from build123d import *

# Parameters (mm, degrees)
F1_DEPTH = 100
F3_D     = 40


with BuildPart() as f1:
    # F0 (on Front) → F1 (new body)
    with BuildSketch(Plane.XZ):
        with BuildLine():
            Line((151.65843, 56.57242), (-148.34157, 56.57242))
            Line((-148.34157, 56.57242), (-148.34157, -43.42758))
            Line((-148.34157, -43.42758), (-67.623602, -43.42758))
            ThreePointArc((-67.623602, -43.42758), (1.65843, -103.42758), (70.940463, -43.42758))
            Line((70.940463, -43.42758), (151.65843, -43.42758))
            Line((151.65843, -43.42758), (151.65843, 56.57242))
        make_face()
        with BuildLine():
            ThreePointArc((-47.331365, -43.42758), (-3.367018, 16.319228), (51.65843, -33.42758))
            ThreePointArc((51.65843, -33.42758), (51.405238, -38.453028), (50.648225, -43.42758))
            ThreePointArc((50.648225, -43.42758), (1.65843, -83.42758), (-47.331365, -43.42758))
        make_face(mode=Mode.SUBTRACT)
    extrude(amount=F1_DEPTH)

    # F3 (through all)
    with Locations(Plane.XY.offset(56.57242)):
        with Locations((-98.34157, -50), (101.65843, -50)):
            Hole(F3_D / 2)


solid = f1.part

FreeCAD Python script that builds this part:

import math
import FreeCAD as App
import Part
import Sketcher

doc = App.newDocument("Part")
params = doc.addObject("Spreadsheet::Sheet", "Params")
for row, (alias, value) in enumerate([
    ("sketch1_radius", "70 mm"),
    ("sketch1_radius2", "50 mm"),
    ("sketch1_width", "300 mm"),
    ("sketch1_height", "100 mm"),
    ("sketch1_height2", "100 mm"),
    ("pad1_length", "100 mm"),
    ("sketch2_diameter", "40 mm"),
    ("hole_diameter", "40 mm"),
], start=1):
    params.set(f"A{row}", alias)
    params.set(f"B{row}", "=" + value)
    params.setAlias(f"B{row}", alias)

body = doc.addObject("PartDesign::Body", "Body")

sketch1 = body.newObject("Sketcher::SketchObject", "Sketch")
sketch1.AttachmentSupport = (doc.getObject("XZ_Plane"), [""])
sketch1.MapMode = "FlatFace"
sketch1.addGeometry([
    Part.LineSegment(App.Vector(151.65843, 56.57242, 0), App.Vector(-148.34157, 56.57242, 0)),
    Part.LineSegment(App.Vector(-148.34157, 56.57242, 0), App.Vector(-148.34157, -43.42758, 0)),
    Part.LineSegment(App.Vector(-148.34157, -43.42758, 0), App.Vector(-67.623602, -43.42758, 0)),
    Part.ArcOfCircle(Part.Circle(App.Vector(1.65843, -33.42758, 0), App.Vector(0, 0, 1), 70), math.radians(-171.786789), math.radians(-8.213211)),
    Part.LineSegment(App.Vector(70.940463, -43.42758, 0), App.Vector(151.65843, -43.42758, 0)),
    Part.LineSegment(App.Vector(151.65843, -43.42758, 0), App.Vector(151.65843, 56.57242, 0)),
    Part.ArcOfCircle(Part.Circle(App.Vector(1.65843, -33.42758, 0), App.Vector(0, 0, 1), 50), math.radians(-168.463041), math.radians(-11.536959)),
    Part.ArcOfCircle(Part.Circle(App.Vector(1.65843, -33.42758, 0), App.Vector(0, 0, 1), 50), math.radians(0), math.radians(191.536959)),
    Part.ArcOfCircle(Part.Circle(App.Vector(1.658482, -33.427586, 0), App.Vector(0, 0, 1), 49.999948), math.radians(-11.536964), math.radians(0.000007)),
], False)
sketch1.addConstraint([
    Sketcher.Constraint("Coincident", 0, 2, 1, 1),
    Sketcher.Constraint("Coincident", 1, 2, 2, 1),
    Sketcher.Constraint("Coincident", 2, 2, 3, 1),
    Sketcher.Constraint("Coincident", 3, 2, 4, 1),
    Sketcher.Constraint("Coincident", 4, 2, 5, 1),
    Sketcher.Constraint("Coincident", 5, 2, 0, 1),
    Sketcher.Constraint("Coincident", 6, 1, 7, 2),
    Sketcher.Constraint("Coincident", 7, 1, 8, 2),
    Sketcher.Constraint("Coincident", 8, 1, 6, 2),
    Sketcher.Constraint("Horizontal", 0),
    Sketcher.Constraint("Vertical", 1),
    Sketcher.Constraint("Horizontal", 2),
    Sketcher.Constraint("Horizontal", 4),
    Sketcher.Constraint("Vertical", 5),
    Sketcher.Constraint("Coincident", 6, 3, 3, 3),
    Sketcher.Constraint("Coincident", 7, 3, 3, 3),
    Sketcher.Constraint("Radius", 3, 70.0),
    Sketcher.Constraint("Radius", 6, 50.0),
    Sketcher.Constraint("DistanceX", 0, 2, 0, 1, 300.0),
    Sketcher.Constraint("DistanceY", 1, 2, 1, 1, 100.0),
    Sketcher.Constraint("DistanceY", 5, 1, 5, 2, 100.0),
    Sketcher.Constraint("DistanceX", 0, 2, 7, 3, 150.0),
    Sketcher.Constraint("DistanceY", 7, 3, 0, 2, 90.0),
    Sketcher.Constraint("DistanceY", 6, 1, 7, 3, 10.0),
    Sketcher.Constraint("DistanceY", 3, 2, 7, 1, 10.0),
    Sketcher.Constraint("DistanceY", 8, 1, 7, 1, 10.0),
    Sketcher.Constraint("Radius", 8, 49.999948),
    Sketcher.Constraint("DistanceX", -1, 1, 3, 3, 1.65843),
    Sketcher.Constraint("DistanceY", 3, 3, -1, 1, 33.42758),
])
sketch1.setExpression("Constraints[16]", "Params.sketch1_radius")
sketch1.setExpression("Constraints[17]", "Params.sketch1_radius2")
sketch1.setExpression("Constraints[18]", "Params.sketch1_width")
sketch1.setExpression("Constraints[19]", "Params.sketch1_height")
sketch1.setExpression("Constraints[20]", "Params.sketch1_height2")
pad1 = body.newObject("PartDesign::Pad", "Pad")
pad1.Profile = sketch1
pad1.setExpression("Length", "Params.pad1_length")

sketch2 = body.newObject("Sketcher::SketchObject", "Sketch001")
sketch2.AttachmentSupport = (doc.getObject("XY_Plane"), [""])
sketch2.MapMode = "FlatFace"
sketch2.AttachmentOffset = App.Placement(App.Vector(0, 0, 56.57242), App.Rotation())
sketch2.addGeometry([
    Part.Circle(App.Vector(-98, -50, 0), App.Vector(0, 0, 1), 20),
    Part.Circle(App.Vector(102, -50, 0), App.Vector(0, 0, 1), 20),
], False)
sketch2.addConstraint([
    Sketcher.Constraint("Equal", 0, 1),
    Sketcher.Constraint("Horizontal", 0, 3, 1, 3),
    Sketcher.Constraint("Diameter", 0, 40.0),
    Sketcher.Constraint("DistanceY", 0, 3, -1, 1, 50.0),
    Sketcher.Constraint("DistanceX", 0, 3, 1, 3, 200.0),
    Sketcher.Constraint("DistanceX", 0, 3, -1, 1, 98.34157),
])
sketch2.setExpression("Constraints[2]", "Params.sketch2_diameter")
doc.recompute()
hole = body.newObject("PartDesign::Hole", "Hole")
hole.Profile = sketch2
hole.ThreadType = "None"
hole.setExpression("Diameter", "Params.hole_diameter")
hole.DepthType = "ThroughAll"

doc.recompute()
